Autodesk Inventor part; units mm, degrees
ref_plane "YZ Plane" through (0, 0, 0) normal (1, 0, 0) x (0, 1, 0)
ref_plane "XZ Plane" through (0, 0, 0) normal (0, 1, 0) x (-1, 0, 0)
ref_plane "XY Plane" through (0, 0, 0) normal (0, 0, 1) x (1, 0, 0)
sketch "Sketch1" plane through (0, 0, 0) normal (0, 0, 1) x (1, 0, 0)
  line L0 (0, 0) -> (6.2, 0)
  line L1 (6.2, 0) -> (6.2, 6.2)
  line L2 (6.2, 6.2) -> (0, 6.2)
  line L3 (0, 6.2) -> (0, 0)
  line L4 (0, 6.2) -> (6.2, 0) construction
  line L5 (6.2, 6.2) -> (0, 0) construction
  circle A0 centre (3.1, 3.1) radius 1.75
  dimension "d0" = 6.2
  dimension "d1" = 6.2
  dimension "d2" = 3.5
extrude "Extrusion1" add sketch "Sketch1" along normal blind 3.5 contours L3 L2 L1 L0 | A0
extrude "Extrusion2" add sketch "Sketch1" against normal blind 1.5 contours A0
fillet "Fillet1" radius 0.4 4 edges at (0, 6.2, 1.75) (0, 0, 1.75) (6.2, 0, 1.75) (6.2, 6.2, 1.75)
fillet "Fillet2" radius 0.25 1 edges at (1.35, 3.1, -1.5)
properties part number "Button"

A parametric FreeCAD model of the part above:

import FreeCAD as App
import Part
import Sketcher
Q = App.Units.Quantity


def edges_at(feature, points):
    """Names of the edges that pass closest to the given points."""
    edges = feature.Shape.Edges
    near = lambda p: min(range(len(edges)), key=lambda i: edges[i].distToShape(Part.Vertex(*p))[0])
    return sorted({f"Edge{near(p) + 1}" for p in points})


def add_polygon(sketch, points):
    """Adds a closed chain of lines whose ends are joined by coincident constraints."""
    first, n = sketch.GeometryCount, len(points)
    for a, b in zip(points, points[1:] + points[:1]):
        sketch.addGeometry(Part.LineSegment(App.Vector(*a, 0), App.Vector(*b, 0)), False)
    for i in range(n):
        sketch.addConstraint(Sketcher.Constraint("Coincident", first + i, 2, first + (i + 1) % n, 1))

doc = App.newDocument("Part")
body = doc.addObject("PartDesign::Body", "Body")

sketch1 = body.newObject("Sketcher::SketchObject", "Sketch")
sketch1.AttachmentSupport = (doc.getObject("XY_Plane"), [""])
sketch1.MapMode = "FlatFace"
add_polygon(sketch1, [(0, 6), (0, 0), (6, 0), (6, 6)])
sketch1.addConstraint([
    Sketcher.Constraint("Vertical", 0),
    Sketcher.Constraint("Horizontal", 1),
    Sketcher.Constraint("Vertical", 2),
    Sketcher.Constraint("Horizontal", 3),
    Sketcher.Constraint("Coincident", 0, 2, -1, 1),
    Sketcher.Constraint("Equal", 3, 0),
    Sketcher.Constraint("DistanceX", 1, 1, 1, 2, Q("6.2 mm")),
])
pad1 = body.newObject("PartDesign::Pad", "Pad")
pad1.Profile = sketch1
pad1.Length = 3.5

sketch2 = body.newObject("Sketcher::SketchObject", "Sketch001")
sketch2.AttachmentSupport = (doc.getObject("XY_Plane"), [""])
sketch2.MapMode = "FlatFace"
sketch2.addGeometry(Part.Circle(App.Vector(3.1, 3.1, 0), App.Vector(0, 0, 1), 1.8), False)
sketch2.addConstraint([
    Sketcher.Constraint("Diameter", 0, Q("3.5 mm")),
    Sketcher.Constraint("DistanceX", -1, 1, 0, 3, Q("3.1 mm")),
    Sketcher.Constraint("DistanceY", -1, 1, 0, 3, Q("3.1 mm")),
])
pad2 = body.newObject("PartDesign::Pad", "Pad001")
pad2.Profile = sketch2
pad2.Length = 1.5
pad2.Reversed = True
doc.recompute()

fillet = body.newObject("PartDesign::Fillet", "Fillet")
fillet.Base = (pad2, edges_at(pad2, [
    (0, 6.2, 1.75),
    (0, 0, 1.75),
    (6.2, 0, 1.75),
    (6.2, 6.2, 1.75),
]))
fillet.Radius = 0.4
doc.recompute()

fillet2 = body.newObject("PartDesign::Fillet", "Fillet001")
fillet2.Base = (fillet, edges_at(fillet, [(1.35, 3.1, -1.5)]))
fillet2.Radius = 0.25

doc.recompute()
